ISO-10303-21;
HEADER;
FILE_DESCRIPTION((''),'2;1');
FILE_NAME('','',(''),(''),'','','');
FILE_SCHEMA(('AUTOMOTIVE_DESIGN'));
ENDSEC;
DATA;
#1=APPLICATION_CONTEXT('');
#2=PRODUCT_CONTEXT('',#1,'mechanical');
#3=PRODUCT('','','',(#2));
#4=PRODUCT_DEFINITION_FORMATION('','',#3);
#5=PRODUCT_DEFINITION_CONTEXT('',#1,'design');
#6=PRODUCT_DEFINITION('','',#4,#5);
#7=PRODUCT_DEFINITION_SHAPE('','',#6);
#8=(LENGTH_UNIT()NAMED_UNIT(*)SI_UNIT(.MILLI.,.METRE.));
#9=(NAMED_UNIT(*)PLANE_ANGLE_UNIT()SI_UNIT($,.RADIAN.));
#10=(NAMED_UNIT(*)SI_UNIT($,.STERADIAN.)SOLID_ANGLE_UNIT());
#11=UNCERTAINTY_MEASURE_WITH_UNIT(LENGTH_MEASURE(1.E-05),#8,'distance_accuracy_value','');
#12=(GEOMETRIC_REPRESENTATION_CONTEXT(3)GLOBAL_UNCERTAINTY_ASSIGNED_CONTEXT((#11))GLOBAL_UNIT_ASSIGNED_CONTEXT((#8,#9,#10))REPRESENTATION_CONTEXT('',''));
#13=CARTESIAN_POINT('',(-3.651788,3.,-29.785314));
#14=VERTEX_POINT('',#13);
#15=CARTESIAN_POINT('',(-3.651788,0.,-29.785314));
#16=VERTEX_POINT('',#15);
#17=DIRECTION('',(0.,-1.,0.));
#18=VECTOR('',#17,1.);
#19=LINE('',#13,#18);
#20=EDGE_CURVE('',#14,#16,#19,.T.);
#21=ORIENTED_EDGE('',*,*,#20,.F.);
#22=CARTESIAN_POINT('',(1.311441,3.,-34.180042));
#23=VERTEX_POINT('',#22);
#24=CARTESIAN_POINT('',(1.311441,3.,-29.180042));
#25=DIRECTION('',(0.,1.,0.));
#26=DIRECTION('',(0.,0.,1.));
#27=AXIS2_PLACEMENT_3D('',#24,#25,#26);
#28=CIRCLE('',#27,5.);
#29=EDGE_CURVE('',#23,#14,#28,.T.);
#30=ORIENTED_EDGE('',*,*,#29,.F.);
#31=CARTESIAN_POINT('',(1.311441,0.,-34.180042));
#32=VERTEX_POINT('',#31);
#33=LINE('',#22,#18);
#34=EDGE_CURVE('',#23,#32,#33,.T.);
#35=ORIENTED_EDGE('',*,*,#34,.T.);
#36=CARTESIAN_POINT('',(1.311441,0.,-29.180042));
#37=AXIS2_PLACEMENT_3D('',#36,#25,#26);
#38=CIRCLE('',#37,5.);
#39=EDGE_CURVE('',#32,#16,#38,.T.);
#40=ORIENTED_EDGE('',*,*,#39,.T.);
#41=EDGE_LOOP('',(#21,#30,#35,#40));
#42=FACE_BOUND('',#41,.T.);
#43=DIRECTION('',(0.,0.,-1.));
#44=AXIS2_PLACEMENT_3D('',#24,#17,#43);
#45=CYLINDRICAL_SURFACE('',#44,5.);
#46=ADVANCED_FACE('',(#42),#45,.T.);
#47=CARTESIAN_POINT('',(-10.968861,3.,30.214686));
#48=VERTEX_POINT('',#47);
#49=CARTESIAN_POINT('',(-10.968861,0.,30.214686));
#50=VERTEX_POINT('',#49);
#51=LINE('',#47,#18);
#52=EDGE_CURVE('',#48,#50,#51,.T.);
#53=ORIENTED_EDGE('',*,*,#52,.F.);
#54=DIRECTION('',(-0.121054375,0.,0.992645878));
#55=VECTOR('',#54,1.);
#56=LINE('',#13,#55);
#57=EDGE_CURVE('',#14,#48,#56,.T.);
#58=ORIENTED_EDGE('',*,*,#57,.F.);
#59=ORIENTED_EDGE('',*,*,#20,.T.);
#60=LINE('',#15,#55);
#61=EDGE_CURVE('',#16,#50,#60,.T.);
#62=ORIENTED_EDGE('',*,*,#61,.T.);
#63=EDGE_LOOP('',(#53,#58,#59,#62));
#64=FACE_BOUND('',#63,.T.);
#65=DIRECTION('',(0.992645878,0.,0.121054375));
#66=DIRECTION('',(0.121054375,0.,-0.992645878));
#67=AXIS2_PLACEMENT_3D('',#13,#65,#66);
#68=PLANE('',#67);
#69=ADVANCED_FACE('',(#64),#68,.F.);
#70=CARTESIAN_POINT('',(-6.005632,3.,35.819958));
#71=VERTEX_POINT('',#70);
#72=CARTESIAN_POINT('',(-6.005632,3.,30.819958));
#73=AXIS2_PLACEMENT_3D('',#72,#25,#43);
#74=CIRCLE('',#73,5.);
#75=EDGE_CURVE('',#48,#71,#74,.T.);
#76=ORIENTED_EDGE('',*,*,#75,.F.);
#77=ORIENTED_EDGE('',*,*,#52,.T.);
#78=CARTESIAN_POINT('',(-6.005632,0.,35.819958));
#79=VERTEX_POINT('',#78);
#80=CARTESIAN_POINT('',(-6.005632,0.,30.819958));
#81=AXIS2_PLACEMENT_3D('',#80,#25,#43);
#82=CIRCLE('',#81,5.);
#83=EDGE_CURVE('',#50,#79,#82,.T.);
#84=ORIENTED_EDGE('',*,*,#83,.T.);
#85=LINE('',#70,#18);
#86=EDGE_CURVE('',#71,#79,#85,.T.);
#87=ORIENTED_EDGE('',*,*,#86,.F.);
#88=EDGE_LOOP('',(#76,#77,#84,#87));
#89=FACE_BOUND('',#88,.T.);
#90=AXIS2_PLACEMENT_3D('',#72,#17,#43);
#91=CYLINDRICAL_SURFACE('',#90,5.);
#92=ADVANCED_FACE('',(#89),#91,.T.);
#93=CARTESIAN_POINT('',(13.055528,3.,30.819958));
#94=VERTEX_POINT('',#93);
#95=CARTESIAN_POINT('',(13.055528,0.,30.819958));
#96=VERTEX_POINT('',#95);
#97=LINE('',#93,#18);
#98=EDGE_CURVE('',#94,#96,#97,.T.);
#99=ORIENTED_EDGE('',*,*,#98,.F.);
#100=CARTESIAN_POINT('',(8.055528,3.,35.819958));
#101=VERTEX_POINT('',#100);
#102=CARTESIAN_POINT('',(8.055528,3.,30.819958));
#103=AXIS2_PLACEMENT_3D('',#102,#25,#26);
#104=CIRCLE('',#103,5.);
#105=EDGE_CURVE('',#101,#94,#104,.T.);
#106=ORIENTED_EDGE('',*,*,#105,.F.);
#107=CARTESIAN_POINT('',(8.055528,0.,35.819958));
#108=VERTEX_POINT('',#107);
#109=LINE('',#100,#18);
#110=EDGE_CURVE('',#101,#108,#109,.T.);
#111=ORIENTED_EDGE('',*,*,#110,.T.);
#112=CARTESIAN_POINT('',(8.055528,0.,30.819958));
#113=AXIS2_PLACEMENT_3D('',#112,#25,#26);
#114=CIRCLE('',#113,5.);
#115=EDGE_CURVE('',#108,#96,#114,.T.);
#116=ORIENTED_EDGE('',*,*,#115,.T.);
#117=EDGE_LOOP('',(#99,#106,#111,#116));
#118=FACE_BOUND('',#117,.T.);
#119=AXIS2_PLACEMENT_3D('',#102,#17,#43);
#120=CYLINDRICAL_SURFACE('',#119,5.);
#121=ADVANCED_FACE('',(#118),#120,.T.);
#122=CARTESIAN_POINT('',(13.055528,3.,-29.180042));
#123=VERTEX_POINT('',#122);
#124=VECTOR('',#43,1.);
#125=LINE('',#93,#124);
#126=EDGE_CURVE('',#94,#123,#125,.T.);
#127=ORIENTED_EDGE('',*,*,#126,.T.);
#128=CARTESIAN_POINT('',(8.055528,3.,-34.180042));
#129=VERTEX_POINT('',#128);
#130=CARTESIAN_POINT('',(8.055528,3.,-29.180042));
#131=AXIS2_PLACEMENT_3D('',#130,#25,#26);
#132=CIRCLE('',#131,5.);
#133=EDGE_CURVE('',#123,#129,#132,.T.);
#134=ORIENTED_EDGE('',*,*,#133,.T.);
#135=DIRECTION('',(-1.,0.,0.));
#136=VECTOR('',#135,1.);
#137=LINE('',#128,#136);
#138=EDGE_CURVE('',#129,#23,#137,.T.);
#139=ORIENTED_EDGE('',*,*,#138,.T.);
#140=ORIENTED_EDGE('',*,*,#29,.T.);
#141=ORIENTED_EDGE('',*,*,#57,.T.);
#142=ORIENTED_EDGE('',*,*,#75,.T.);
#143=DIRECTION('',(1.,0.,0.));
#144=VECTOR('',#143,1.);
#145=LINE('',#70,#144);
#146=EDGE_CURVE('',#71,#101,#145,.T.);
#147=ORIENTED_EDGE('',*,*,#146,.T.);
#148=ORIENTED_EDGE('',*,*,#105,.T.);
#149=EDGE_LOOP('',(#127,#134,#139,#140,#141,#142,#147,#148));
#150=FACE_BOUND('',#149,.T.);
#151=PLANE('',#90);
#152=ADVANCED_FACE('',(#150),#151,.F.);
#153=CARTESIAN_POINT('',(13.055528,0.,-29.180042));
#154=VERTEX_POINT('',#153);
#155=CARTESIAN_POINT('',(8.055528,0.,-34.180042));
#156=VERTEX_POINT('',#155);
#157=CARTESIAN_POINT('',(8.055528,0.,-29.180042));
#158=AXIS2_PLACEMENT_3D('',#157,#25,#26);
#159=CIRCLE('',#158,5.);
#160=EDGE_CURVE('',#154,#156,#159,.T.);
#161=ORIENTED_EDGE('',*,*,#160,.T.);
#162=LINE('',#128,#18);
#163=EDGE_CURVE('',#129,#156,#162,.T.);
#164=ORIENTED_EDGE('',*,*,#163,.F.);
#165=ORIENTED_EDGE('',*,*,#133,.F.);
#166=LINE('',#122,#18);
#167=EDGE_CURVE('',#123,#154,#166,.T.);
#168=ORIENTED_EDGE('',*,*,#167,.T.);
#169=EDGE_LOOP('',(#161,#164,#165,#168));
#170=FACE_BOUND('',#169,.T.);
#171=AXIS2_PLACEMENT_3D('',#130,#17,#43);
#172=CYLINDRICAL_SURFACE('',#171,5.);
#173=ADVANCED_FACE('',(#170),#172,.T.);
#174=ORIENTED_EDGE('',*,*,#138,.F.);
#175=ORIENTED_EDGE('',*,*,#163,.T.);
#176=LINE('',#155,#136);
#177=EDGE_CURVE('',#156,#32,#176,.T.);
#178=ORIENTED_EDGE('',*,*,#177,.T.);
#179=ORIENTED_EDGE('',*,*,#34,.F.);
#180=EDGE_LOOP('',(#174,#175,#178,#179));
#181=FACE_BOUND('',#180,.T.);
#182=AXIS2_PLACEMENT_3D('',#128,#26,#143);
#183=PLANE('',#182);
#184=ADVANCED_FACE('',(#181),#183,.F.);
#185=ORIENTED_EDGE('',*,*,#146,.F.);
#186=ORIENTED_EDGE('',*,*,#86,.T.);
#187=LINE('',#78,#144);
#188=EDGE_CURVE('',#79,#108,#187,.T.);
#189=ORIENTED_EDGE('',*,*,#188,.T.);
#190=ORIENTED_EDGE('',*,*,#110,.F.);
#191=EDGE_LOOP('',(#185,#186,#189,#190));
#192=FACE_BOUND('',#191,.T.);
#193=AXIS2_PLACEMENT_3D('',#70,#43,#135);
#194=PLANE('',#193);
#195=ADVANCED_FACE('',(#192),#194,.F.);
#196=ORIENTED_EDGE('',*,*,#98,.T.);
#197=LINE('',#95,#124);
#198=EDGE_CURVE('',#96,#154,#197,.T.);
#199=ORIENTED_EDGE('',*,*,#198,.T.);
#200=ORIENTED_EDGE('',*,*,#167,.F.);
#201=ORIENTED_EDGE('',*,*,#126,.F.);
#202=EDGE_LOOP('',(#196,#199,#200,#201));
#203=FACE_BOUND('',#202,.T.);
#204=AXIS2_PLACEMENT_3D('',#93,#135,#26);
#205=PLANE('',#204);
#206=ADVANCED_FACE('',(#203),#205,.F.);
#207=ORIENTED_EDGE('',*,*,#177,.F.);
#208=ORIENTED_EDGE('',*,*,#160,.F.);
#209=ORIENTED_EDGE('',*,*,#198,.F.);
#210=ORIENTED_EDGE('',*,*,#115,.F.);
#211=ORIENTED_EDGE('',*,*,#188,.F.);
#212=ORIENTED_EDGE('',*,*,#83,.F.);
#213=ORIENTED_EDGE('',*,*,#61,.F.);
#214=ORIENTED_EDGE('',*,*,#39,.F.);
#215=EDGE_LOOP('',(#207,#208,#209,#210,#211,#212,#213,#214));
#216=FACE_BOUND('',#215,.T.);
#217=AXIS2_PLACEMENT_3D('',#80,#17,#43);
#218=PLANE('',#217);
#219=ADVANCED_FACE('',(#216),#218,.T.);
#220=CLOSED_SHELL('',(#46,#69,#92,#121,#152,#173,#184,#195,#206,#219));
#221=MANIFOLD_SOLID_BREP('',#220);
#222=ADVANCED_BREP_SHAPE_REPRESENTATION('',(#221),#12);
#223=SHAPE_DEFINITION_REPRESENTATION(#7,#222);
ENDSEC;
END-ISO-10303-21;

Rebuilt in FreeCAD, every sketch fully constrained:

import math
import FreeCAD as App
import Part
import Sketcher
from FreeCAD import Vector

doc = App.newDocument("Part")
body = doc.addObject("PartDesign::Body", "Body")

sketch1 = doc.addObject("Sketcher::SketchObject", "Sketch")
body.addObject(sketch1)
sketch1.AttachmentSupport = (doc.XZ_Plane, [""])
sketch1.MapMode = "FlatFace"
sketch1.addGeometry(Part.LineSegment(Vector(-3.7, -29.8, 0), Vector(-11, 30.2, 0)), False)
sketch1.addGeometry(Part.ArcOfCircle(Part.Circle(Vector(-6, 30.8, 0), Vector(0, 0, 1), 5), math.radians(90), math.radians(187)), False)
sketch1.addGeometry(Part.LineSegment(Vector(-6, 35.8, 0), Vector(8.1, 35.8, 0)), False)
sketch1.addGeometry(Part.ArcOfCircle(Part.Circle(Vector(8.1, 30.8, 0), Vector(0, 0, 1), 5), math.radians(0), math.radians(90)), False)
sketch1.addGeometry(Part.LineSegment(Vector(13.1, 30.8, 0), Vector(13.1, -29.2, 0)), False)
sketch1.addGeometry(Part.ArcOfCircle(Part.Circle(Vector(8.1, -29.2, 0), Vector(0, 0, 1), 5), math.radians(-90), math.radians(0)), False)
sketch1.addGeometry(Part.LineSegment(Vector(8.1, -34.2, 0), Vector(1.3, -34.2, 0)), False)
sketch1.addGeometry(Part.ArcOfCircle(Part.Circle(Vector(1.3, -29.2, 0), Vector(0, 0, 1), 5), math.radians(-173), math.radians(-90)), False)
sketch1.addConstraint(Sketcher.Constraint("Tangent", 0, 2, 1, 2))
sketch1.addConstraint(Sketcher.Constraint("Tangent", 1, 1, 2, 1))
sketch1.addConstraint(Sketcher.Constraint("Tangent", 2, 2, 3, 2))
sketch1.addConstraint(Sketcher.Constraint("Tangent", 3, 1, 4, 1))
sketch1.addConstraint(Sketcher.Constraint("Tangent", 4, 2, 5, 2))
sketch1.addConstraint(Sketcher.Constraint("Tangent", 5, 1, 6, 1))
sketch1.addConstraint(Sketcher.Constraint("Tangent", 6, 2, 7, 2))
sketch1.addConstraint(Sketcher.Constraint("Tangent", 7, 1, 0, 1))
sketch1.addConstraint(Sketcher.Constraint("Horizontal", 2))
sketch1.addConstraint(Sketcher.Constraint("Vertical", 4))
sketch1.addConstraint(Sketcher.Constraint("Horizontal", 6))
sketch1.addConstraint(Sketcher.Constraint("Equal", 1, 3))
sketch1.addConstraint(Sketcher.Constraint("Equal", 3, 5))
sketch1.addConstraint(Sketcher.Constraint("Equal", 5, 7))
sketch1.addConstraint(Sketcher.Constraint("Radius", 1, 5.0))
sketch1.addConstraint(Sketcher.Constraint("DistanceY", 4, 2, 4, 1, 60.0))
sketch1.addConstraint(Sketcher.Constraint("DistanceX", 2, 1, 2, 2, 14.061159))
sketch1.addConstraint(Sketcher.Constraint("DistanceX", 6, 2, 6, 1, 6.744086))
sketch1.addConstraint(Sketcher.Constraint("DistanceX", 1, 3, -1, 1, 6.005632))
sketch1.addConstraint(Sketcher.Constraint("DistanceY", -1, 1, 1, 3, 30.819958))
pad1 = doc.addObject("PartDesign::Pad", "Pad")
body.addObject(pad1)
pad1.Profile = sketch1
pad1.Length = 3
pad1.Reversed = True

doc.recompute()
